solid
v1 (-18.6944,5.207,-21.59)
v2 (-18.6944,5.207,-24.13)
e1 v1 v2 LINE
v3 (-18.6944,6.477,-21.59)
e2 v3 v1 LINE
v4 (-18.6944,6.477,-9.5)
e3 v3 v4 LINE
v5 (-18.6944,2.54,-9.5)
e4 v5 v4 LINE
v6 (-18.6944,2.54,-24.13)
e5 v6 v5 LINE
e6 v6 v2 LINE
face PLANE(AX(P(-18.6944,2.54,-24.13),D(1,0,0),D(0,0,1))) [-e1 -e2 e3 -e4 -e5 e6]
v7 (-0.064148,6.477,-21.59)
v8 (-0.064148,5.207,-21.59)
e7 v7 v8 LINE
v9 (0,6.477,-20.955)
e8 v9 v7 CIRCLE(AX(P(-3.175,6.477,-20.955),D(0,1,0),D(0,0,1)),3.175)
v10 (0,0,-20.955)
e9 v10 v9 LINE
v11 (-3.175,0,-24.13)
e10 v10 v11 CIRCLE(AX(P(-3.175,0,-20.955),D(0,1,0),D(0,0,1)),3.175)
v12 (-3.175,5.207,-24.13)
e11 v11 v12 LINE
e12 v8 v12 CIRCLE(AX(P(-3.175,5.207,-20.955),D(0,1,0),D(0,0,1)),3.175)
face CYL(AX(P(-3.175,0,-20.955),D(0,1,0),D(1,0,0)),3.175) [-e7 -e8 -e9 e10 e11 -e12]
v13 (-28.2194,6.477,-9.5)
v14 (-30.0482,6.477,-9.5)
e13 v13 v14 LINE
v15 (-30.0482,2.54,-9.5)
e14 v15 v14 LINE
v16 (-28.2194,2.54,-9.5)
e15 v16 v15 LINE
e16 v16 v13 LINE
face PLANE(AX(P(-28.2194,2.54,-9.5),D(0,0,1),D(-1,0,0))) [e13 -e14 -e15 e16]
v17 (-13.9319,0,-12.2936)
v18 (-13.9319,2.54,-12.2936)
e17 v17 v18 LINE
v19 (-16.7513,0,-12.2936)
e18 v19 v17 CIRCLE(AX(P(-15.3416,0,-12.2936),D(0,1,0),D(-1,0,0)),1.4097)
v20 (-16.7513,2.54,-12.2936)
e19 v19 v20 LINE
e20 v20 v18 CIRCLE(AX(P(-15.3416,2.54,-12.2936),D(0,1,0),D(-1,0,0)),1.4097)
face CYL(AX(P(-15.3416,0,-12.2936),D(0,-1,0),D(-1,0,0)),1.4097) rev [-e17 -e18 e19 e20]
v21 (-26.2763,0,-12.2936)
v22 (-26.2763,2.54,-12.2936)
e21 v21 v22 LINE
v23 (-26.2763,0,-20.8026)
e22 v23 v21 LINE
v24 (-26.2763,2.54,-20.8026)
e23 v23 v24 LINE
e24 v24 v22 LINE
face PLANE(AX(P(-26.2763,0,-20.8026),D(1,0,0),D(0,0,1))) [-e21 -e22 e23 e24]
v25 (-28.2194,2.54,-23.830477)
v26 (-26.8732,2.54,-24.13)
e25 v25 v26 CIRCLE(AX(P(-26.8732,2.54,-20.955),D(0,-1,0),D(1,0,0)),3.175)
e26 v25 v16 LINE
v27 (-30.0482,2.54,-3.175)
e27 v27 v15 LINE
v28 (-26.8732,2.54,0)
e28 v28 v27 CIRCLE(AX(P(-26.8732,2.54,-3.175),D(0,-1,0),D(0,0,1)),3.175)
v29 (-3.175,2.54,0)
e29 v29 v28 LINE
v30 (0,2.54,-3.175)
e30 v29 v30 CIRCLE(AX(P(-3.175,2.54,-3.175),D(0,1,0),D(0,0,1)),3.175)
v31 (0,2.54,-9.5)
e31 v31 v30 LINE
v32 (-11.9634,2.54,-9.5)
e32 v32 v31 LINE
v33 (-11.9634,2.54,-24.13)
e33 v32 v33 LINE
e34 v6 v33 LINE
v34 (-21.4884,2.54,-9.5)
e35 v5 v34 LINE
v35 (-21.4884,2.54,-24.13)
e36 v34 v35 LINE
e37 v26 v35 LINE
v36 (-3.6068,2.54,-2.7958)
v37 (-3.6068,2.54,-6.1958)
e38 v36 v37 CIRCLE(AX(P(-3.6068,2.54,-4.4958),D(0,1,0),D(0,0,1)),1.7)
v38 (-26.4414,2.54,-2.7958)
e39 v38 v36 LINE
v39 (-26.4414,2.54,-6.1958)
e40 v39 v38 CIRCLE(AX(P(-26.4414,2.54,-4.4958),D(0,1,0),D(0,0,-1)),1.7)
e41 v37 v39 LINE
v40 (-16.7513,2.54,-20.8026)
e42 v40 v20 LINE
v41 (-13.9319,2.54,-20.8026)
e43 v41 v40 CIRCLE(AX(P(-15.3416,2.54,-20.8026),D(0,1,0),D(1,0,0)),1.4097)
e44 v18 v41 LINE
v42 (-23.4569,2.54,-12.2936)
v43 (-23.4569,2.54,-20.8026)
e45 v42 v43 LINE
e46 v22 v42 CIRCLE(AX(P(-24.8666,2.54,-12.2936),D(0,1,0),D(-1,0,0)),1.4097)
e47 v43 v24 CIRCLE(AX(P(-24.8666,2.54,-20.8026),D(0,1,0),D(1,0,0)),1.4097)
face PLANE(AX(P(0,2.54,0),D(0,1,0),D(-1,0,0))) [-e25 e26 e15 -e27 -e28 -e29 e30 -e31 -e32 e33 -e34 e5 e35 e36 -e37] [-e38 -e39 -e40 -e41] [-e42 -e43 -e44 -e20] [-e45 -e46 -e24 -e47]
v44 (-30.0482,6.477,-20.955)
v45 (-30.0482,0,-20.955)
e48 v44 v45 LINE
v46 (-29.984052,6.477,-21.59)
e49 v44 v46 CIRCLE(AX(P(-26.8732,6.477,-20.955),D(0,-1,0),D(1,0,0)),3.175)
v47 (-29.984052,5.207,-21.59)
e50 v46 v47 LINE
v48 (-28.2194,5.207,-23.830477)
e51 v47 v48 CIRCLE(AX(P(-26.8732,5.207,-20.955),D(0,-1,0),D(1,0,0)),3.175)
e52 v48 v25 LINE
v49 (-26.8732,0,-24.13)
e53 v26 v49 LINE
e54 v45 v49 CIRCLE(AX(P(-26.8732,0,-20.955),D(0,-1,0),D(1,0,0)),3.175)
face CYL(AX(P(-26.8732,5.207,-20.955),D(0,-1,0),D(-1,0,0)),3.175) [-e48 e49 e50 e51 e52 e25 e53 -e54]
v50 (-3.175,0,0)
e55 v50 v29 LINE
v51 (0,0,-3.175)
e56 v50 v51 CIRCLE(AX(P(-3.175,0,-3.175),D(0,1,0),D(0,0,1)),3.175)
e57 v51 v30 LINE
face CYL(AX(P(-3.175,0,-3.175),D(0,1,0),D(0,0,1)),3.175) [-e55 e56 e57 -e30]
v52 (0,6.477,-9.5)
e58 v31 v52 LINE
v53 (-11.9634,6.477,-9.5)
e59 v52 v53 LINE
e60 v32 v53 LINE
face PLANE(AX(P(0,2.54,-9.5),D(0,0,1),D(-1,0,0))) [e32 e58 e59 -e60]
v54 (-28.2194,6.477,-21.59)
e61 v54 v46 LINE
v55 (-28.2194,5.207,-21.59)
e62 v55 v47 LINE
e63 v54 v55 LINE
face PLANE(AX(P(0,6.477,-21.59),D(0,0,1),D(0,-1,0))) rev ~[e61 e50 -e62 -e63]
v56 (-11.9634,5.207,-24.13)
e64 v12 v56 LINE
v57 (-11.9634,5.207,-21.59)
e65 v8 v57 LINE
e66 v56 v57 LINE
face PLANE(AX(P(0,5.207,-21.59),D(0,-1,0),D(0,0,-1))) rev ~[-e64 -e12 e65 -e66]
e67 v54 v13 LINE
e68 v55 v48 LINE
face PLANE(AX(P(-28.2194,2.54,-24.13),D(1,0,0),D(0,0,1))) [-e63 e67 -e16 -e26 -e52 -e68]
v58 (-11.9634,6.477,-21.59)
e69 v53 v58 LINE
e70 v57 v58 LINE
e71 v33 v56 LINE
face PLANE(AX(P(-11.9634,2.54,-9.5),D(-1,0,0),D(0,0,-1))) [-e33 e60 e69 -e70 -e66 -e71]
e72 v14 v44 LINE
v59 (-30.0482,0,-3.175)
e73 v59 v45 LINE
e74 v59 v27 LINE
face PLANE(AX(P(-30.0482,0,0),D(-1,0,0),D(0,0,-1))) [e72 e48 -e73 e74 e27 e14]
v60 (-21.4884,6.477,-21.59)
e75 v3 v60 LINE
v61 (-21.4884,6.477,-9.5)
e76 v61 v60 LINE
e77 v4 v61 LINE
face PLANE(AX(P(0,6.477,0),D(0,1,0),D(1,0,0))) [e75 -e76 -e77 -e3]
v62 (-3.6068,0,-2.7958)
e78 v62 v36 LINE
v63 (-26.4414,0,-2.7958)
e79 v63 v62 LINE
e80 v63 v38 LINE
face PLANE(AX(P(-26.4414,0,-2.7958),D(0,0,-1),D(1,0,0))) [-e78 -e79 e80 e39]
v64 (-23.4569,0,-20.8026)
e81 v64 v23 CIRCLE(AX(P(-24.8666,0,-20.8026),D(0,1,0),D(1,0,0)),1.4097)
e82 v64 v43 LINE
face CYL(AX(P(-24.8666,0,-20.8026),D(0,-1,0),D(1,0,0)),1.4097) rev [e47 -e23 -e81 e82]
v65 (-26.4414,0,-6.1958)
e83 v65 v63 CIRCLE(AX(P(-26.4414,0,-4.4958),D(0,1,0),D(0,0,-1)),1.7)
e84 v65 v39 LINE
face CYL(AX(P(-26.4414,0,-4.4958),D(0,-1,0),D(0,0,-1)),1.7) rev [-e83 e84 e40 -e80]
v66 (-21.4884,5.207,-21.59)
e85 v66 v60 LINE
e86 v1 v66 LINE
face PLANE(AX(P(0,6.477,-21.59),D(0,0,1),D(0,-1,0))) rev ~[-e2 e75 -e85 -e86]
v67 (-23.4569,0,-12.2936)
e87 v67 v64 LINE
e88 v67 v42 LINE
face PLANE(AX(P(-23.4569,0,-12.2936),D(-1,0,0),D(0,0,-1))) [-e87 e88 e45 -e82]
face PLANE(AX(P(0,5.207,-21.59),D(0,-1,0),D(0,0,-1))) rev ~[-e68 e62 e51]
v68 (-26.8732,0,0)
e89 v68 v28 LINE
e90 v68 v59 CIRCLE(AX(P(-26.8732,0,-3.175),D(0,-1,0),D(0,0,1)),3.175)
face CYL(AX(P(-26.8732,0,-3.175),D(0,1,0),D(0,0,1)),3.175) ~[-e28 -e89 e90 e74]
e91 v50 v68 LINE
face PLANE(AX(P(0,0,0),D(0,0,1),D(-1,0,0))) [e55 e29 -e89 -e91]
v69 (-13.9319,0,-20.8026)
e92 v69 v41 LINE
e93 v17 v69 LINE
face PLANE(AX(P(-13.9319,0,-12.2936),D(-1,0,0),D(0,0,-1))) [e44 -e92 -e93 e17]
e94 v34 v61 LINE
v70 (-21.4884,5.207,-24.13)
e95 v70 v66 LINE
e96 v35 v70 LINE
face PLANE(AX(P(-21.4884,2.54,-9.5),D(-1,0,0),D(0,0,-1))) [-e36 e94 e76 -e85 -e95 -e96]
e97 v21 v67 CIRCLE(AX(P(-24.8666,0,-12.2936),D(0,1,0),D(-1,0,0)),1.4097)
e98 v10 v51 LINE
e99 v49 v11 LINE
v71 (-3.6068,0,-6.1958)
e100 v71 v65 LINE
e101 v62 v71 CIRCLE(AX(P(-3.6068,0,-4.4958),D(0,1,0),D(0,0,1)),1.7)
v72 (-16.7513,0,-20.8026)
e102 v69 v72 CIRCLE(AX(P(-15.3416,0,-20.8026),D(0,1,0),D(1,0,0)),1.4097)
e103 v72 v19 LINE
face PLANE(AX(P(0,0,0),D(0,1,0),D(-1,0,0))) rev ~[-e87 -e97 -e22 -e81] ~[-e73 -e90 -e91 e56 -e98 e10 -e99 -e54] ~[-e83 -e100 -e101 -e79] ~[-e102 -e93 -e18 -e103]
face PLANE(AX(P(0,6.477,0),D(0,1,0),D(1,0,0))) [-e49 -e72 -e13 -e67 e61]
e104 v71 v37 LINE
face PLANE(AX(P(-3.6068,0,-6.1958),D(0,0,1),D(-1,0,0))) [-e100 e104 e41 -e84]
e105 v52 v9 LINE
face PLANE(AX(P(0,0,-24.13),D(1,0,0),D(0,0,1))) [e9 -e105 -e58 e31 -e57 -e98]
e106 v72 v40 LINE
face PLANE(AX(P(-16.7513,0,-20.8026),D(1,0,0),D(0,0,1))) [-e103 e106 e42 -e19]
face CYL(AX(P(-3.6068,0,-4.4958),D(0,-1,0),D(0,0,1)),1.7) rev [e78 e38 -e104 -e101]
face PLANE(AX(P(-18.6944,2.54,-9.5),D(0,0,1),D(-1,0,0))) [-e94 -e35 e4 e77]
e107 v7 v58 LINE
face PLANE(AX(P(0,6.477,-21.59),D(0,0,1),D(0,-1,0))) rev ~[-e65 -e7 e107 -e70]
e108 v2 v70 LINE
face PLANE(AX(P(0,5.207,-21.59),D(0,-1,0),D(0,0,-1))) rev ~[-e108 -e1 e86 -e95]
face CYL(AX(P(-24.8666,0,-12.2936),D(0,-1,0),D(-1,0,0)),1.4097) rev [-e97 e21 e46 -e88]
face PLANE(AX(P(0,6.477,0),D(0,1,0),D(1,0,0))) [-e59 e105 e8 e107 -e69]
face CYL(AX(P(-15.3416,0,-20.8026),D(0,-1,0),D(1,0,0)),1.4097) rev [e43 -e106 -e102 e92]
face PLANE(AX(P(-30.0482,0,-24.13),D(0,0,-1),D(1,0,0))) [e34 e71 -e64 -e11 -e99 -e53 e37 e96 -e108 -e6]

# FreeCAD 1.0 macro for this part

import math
import FreeCAD as App
import Part
import Sketcher
Q = App.Units.Quantity


def edges_at(feature, points):
    """Names of the edges that pass closest to the given points."""
    edges = feature.Shape.Edges
    near = lambda p: min(range(len(edges)), key=lambda i: edges[i].distToShape(Part.Vertex(*p))[0])
    return sorted({f"Edge{near(p) + 1}" for p in points})


def add_polygon(sketch, points):
    """Adds a closed chain of lines whose ends are joined by coincident constraints."""
    first, n = sketch.GeometryCount, len(points)
    for a, b in zip(points, points[1:] + points[:1]):
        sketch.addGeometry(Part.LineSegment(App.Vector(*a, 0), App.Vector(*b, 0)), False)
    for i in range(n):
        sketch.addConstraint(Sketcher.Constraint("Coincident", first + i, 2, first + (i + 1) % n, 1))

doc = App.newDocument("Part")
body = doc.addObject("PartDesign::Body", "Body")

# Sketch on XZ plane
sketch1 = body.newObject("Sketcher::SketchObject", "Sketch")
sketch1.AttachmentSupport = (doc.getObject("XZ_Plane"), [""])
sketch1.MapMode = "FlatFace"
add_polygon(sketch1, [(-30, 0), (0, 0), (0, -24.1), (-30, -24.1)])  # lines 0-3
sketch1.addGeometry(Part.LineSegment(App.Vector(-13.9, -20.8, 0), App.Vector(-13.9, -12.3, 0)), False)  # 4
sketch1.addGeometry(Part.ArcOfCircle(Part.Circle(App.Vector(-15.3, -12.3, 0), App.Vector(0, 0, 1), 1.4), math.radians(0), math.radians(180)), False)  # 5
sketch1.addGeometry(Part.LineSegment(App.Vector(-16.8, -12.3, 0), App.Vector(-16.8, -20.8, 0)), False)  # 6
sketch1.addGeometry(Part.ArcOfCircle(Part.Circle(App.Vector(-15.3, -20.8, 0), App.Vector(0, 0, 1), 1.4), math.radians(180), math.radians(360)), False)  # 7
sketch1.addGeometry(Part.LineSegment(App.Vector(-23.5, -20.8, 0), App.Vector(-23.5, -12.3, 0)), False)  # 8
sketch1.addGeometry(Part.ArcOfCircle(Part.Circle(App.Vector(-24.9, -12.3, 0), App.Vector(0, 0, 1), 1.4), math.radians(0), math.radians(180)), False)  # 9
sketch1.addGeometry(Part.LineSegment(App.Vector(-26.3, -12.3, 0), App.Vector(-26.3, -20.8, 0)), False)  # 10
sketch1.addGeometry(Part.ArcOfCircle(Part.Circle(App.Vector(-24.9, -20.8, 0), App.Vector(0, 0, 1), 1.4), math.radians(180), math.radians(360)), False)  # 11
sketch1.addGeometry(Part.LineSegment(App.Vector(-3.6, -2.8, 0), App.Vector(-26.4, -2.8, 0)), False)  # 12
sketch1.addGeometry(Part.ArcOfCircle(Part.Circle(App.Vector(-26.4, -4.5, 0), App.Vector(0, 0, 1), 1.7), math.radians(90), math.radians(270)), False)  # 13
sketch1.addGeometry(Part.LineSegment(App.Vector(-26.4, -6.2, 0), App.Vector(-3.6, -6.2, 0)), False)  # 14
sketch1.addGeometry(Part.ArcOfCircle(Part.Circle(App.Vector(-3.6, -4.5, 0), App.Vector(0, 0, 1), 1.7), math.radians(-90), math.radians(90)), False)  # 15
sketch1.addConstraint([
    Sketcher.Constraint("Tangent", 4, 2, 5, 1),
    Sketcher.Constraint("Tangent", 5, 2, 6, 1),
    Sketcher.Constraint("Tangent", 6, 2, 7, 1),
    Sketcher.Constraint("Tangent", 7, 2, 4, 1),
    Sketcher.Constraint("Tangent", 8, 2, 9, 1),
    Sketcher.Constraint("Tangent", 9, 2, 10, 1),
    Sketcher.Constraint("Tangent", 10, 2, 11, 1),
    Sketcher.Constraint("Tangent", 11, 2, 8, 1),
    Sketcher.Constraint("Tangent", 12, 2, 13, 1),
    Sketcher.Constraint("Tangent", 13, 2, 14, 1),
    Sketcher.Constraint("Tangent", 14, 2, 15, 1),
    Sketcher.Constraint("Tangent", 15, 2, 12, 1),
    Sketcher.Constraint("Horizontal", 0),
    Sketcher.Constraint("Vertical", 1),
    Sketcher.Constraint("Horizontal", 2),
    Sketcher.Constraint("Vertical", 3),
    Sketcher.Constraint("Vertical", 4),
    Sketcher.Constraint("Vertical", 6),
    Sketcher.Constraint("Vertical", 8),
    Sketcher.Constraint("Vertical", 10),
    Sketcher.Constraint("Horizontal", 12),
    Sketcher.Constraint("Horizontal", 14),
    Sketcher.Constraint("Coincident", 0, 2, -1, 1),
    Sketcher.Constraint("Equal", 7, 9),
    Sketcher.Constraint("Horizontal", 5, 3, 9, 3),
    Sketcher.Constraint("Horizontal", 7, 3, 11, 3),
    Sketcher.Constraint("DistanceY", 1, 2, 1, 1, Q("0.95 in")),
    Sketcher.Constraint("Radius", 5, Q("0.0555 in")),
    Sketcher.Constraint("DistanceX", 0, 1, 0, 2, Q("1.183 in")),
    Sketcher.Constraint("Radius", 13, Q("1.7 mm")),
    Sketcher.Constraint("DistanceY", 5, 3, -1, 1, Q("0.484 in")),
    Sketcher.Constraint("DistanceY", 13, 3, -1, 1, Q("0.177 in")),
    Sketcher.Constraint("DistanceX", 15, 3, -1, 1, Q("0.142 in")),
    Sketcher.Constraint("DistanceX", 9, 3, 5, 3, Q("0.375 in")),
    Sketcher.Constraint("DistanceY", 1, 2, 7, 3, Q("0.131 in")),
    Sketcher.Constraint("DistanceX", 2, 2, 11, 3, Q("0.204 in")),
    Sketcher.Constraint("DistanceX", 2, 2, 13, 3, Q("0.142 in")),
])
pad1 = body.newObject("PartDesign::Pad", "Pad")
pad1.Profile = sketch1
pad1.Length = Q("0.1 in")
pad1.Reversed = True

# Sketch on XZ plane
sketch2 = body.newObject("Sketcher::SketchObject", "Sketch001")
sketch2.AttachmentSupport = (doc.getObject("XZ_Plane"), [""])
sketch2.MapMode = "FlatFace"
sketch2.AttachmentOffset = App.Placement(App.Vector(0, 0, -0.1 * 25.4), App.Rotation())
add_polygon(sketch2, [(0, -9.5), (0, -24.1), (-12, -24.1), (-12, -9.5)])  # lines 0-3
add_polygon(sketch2, [(-18.7, -9.5), (-18.7, -24.1), (-21.5, -24.1), (-21.5, -9.5)])  # lines 4-7
add_polygon(sketch2, [(-28.2, -9.5), (-28.2, -24.1), (-30, -24.1), (-30, -9.5)])  # lines 8-11
sketch2.addConstraint([
    Sketcher.Constraint("Vertical", 0),
    Sketcher.Constraint("Horizontal", 1),
    Sketcher.Constraint("Vertical", 2),
    Sketcher.Constraint("Horizontal", 3),
    Sketcher.Constraint("Vertical", 4),
    Sketcher.Constraint("Horizontal", 5),
    Sketcher.Constraint("Vertical", 6),
    Sketcher.Constraint("Horizontal", 7),
    Sketcher.Constraint("Vertical", 8),
    Sketcher.Constraint("Horizontal", 9),
    Sketcher.Constraint("Vertical", 10),
    Sketcher.Constraint("Horizontal", 11),
    Sketcher.Constraint("PointOnObject", 0, 2, -2),
    Sketcher.Constraint("Horizontal", 1, 2, 4, 2),
    Sketcher.Constraint("Horizontal", 3, 2, 6, 2),
    Sketcher.Constraint("Horizontal", 5, 2, 8, 2),
    Sketcher.Constraint("Horizontal", 7, 2, 10, 2),
    Sketcher.Constraint("DistanceX", 9, 2, 9, 1, Q("0.072 in")),
    Sketcher.Constraint("DistanceX", 4, 2, 1, 2, Q("0.265 in")),
    Sketcher.Constraint("DistanceX", 5, 2, 1, 2, Q("0.375 in")),
    Sketcher.Constraint("DistanceX", 8, 2, 5, 2, Q("0.265 in")),
    Sketcher.Constraint("DistanceX", 1, 2, 1, 1, Q("0.471 in")),
    Sketcher.Constraint("DistanceY", 2, 2, -1, 1, Q("9.5 mm")),
    Sketcher.Constraint("DistanceY", 0, 2, -1, 1, Q("0.95 in")),
])
pad2 = body.newObject("PartDesign::Pad", "Pad001")
pad2.Profile = sketch2
pad2.Length = Q("0.155 in")
pad2.Reversed = True

# Sketch on YZ plane
sketch3 = body.newObject("Sketcher::SketchObject", "Sketch002")
sketch3.AttachmentSupport = (doc.getObject("YZ_Plane"), [""])
sketch3.MapMode = "FlatFace"
add_polygon(sketch3, [(5.2, -24.1), (6.5, -24.1), (6.5, -21.6), (5.2, -21.6)])  # lines 0-3
sketch3.addConstraint([
    Sketcher.Constraint("Horizontal", 0),
    Sketcher.Constraint("Vertical", 1),
    Sketcher.Constraint("Horizontal", 2),
    Sketcher.Constraint("Vertical", 3),
    Sketcher.Constraint("DistanceY", 1, 1, 1, 2, Q("0.1 in")),
    Sketcher.Constraint("DistanceX", 0, 1, 0, 2, Q("0.05 in")),
    Sketcher.Constraint("DistanceY", 0, 2, -1, 1, Q("0.95 in")),
    Sketcher.Constraint("DistanceX", -1, 1, 0, 2, Q("0.255 in")),
])
pocket1 = body.newObject("PartDesign::Pocket", "Pocket")
pocket1.Profile = sketch3
pocket1.Type = "ThroughAll"
doc.recompute()

fillet = body.newObject("PartDesign::Fillet", "Fillet")
fillet.Base = (pocket1, edges_at(pocket1, [
    (0, 1.27, 0),
    (0, 2.603, -24.13),
    (-30.048, 2.603, -24.13),
    (-30.048, 1.27, 0),
]))
fillet.Radius = Q("0.125 in")

doc.recompute()
